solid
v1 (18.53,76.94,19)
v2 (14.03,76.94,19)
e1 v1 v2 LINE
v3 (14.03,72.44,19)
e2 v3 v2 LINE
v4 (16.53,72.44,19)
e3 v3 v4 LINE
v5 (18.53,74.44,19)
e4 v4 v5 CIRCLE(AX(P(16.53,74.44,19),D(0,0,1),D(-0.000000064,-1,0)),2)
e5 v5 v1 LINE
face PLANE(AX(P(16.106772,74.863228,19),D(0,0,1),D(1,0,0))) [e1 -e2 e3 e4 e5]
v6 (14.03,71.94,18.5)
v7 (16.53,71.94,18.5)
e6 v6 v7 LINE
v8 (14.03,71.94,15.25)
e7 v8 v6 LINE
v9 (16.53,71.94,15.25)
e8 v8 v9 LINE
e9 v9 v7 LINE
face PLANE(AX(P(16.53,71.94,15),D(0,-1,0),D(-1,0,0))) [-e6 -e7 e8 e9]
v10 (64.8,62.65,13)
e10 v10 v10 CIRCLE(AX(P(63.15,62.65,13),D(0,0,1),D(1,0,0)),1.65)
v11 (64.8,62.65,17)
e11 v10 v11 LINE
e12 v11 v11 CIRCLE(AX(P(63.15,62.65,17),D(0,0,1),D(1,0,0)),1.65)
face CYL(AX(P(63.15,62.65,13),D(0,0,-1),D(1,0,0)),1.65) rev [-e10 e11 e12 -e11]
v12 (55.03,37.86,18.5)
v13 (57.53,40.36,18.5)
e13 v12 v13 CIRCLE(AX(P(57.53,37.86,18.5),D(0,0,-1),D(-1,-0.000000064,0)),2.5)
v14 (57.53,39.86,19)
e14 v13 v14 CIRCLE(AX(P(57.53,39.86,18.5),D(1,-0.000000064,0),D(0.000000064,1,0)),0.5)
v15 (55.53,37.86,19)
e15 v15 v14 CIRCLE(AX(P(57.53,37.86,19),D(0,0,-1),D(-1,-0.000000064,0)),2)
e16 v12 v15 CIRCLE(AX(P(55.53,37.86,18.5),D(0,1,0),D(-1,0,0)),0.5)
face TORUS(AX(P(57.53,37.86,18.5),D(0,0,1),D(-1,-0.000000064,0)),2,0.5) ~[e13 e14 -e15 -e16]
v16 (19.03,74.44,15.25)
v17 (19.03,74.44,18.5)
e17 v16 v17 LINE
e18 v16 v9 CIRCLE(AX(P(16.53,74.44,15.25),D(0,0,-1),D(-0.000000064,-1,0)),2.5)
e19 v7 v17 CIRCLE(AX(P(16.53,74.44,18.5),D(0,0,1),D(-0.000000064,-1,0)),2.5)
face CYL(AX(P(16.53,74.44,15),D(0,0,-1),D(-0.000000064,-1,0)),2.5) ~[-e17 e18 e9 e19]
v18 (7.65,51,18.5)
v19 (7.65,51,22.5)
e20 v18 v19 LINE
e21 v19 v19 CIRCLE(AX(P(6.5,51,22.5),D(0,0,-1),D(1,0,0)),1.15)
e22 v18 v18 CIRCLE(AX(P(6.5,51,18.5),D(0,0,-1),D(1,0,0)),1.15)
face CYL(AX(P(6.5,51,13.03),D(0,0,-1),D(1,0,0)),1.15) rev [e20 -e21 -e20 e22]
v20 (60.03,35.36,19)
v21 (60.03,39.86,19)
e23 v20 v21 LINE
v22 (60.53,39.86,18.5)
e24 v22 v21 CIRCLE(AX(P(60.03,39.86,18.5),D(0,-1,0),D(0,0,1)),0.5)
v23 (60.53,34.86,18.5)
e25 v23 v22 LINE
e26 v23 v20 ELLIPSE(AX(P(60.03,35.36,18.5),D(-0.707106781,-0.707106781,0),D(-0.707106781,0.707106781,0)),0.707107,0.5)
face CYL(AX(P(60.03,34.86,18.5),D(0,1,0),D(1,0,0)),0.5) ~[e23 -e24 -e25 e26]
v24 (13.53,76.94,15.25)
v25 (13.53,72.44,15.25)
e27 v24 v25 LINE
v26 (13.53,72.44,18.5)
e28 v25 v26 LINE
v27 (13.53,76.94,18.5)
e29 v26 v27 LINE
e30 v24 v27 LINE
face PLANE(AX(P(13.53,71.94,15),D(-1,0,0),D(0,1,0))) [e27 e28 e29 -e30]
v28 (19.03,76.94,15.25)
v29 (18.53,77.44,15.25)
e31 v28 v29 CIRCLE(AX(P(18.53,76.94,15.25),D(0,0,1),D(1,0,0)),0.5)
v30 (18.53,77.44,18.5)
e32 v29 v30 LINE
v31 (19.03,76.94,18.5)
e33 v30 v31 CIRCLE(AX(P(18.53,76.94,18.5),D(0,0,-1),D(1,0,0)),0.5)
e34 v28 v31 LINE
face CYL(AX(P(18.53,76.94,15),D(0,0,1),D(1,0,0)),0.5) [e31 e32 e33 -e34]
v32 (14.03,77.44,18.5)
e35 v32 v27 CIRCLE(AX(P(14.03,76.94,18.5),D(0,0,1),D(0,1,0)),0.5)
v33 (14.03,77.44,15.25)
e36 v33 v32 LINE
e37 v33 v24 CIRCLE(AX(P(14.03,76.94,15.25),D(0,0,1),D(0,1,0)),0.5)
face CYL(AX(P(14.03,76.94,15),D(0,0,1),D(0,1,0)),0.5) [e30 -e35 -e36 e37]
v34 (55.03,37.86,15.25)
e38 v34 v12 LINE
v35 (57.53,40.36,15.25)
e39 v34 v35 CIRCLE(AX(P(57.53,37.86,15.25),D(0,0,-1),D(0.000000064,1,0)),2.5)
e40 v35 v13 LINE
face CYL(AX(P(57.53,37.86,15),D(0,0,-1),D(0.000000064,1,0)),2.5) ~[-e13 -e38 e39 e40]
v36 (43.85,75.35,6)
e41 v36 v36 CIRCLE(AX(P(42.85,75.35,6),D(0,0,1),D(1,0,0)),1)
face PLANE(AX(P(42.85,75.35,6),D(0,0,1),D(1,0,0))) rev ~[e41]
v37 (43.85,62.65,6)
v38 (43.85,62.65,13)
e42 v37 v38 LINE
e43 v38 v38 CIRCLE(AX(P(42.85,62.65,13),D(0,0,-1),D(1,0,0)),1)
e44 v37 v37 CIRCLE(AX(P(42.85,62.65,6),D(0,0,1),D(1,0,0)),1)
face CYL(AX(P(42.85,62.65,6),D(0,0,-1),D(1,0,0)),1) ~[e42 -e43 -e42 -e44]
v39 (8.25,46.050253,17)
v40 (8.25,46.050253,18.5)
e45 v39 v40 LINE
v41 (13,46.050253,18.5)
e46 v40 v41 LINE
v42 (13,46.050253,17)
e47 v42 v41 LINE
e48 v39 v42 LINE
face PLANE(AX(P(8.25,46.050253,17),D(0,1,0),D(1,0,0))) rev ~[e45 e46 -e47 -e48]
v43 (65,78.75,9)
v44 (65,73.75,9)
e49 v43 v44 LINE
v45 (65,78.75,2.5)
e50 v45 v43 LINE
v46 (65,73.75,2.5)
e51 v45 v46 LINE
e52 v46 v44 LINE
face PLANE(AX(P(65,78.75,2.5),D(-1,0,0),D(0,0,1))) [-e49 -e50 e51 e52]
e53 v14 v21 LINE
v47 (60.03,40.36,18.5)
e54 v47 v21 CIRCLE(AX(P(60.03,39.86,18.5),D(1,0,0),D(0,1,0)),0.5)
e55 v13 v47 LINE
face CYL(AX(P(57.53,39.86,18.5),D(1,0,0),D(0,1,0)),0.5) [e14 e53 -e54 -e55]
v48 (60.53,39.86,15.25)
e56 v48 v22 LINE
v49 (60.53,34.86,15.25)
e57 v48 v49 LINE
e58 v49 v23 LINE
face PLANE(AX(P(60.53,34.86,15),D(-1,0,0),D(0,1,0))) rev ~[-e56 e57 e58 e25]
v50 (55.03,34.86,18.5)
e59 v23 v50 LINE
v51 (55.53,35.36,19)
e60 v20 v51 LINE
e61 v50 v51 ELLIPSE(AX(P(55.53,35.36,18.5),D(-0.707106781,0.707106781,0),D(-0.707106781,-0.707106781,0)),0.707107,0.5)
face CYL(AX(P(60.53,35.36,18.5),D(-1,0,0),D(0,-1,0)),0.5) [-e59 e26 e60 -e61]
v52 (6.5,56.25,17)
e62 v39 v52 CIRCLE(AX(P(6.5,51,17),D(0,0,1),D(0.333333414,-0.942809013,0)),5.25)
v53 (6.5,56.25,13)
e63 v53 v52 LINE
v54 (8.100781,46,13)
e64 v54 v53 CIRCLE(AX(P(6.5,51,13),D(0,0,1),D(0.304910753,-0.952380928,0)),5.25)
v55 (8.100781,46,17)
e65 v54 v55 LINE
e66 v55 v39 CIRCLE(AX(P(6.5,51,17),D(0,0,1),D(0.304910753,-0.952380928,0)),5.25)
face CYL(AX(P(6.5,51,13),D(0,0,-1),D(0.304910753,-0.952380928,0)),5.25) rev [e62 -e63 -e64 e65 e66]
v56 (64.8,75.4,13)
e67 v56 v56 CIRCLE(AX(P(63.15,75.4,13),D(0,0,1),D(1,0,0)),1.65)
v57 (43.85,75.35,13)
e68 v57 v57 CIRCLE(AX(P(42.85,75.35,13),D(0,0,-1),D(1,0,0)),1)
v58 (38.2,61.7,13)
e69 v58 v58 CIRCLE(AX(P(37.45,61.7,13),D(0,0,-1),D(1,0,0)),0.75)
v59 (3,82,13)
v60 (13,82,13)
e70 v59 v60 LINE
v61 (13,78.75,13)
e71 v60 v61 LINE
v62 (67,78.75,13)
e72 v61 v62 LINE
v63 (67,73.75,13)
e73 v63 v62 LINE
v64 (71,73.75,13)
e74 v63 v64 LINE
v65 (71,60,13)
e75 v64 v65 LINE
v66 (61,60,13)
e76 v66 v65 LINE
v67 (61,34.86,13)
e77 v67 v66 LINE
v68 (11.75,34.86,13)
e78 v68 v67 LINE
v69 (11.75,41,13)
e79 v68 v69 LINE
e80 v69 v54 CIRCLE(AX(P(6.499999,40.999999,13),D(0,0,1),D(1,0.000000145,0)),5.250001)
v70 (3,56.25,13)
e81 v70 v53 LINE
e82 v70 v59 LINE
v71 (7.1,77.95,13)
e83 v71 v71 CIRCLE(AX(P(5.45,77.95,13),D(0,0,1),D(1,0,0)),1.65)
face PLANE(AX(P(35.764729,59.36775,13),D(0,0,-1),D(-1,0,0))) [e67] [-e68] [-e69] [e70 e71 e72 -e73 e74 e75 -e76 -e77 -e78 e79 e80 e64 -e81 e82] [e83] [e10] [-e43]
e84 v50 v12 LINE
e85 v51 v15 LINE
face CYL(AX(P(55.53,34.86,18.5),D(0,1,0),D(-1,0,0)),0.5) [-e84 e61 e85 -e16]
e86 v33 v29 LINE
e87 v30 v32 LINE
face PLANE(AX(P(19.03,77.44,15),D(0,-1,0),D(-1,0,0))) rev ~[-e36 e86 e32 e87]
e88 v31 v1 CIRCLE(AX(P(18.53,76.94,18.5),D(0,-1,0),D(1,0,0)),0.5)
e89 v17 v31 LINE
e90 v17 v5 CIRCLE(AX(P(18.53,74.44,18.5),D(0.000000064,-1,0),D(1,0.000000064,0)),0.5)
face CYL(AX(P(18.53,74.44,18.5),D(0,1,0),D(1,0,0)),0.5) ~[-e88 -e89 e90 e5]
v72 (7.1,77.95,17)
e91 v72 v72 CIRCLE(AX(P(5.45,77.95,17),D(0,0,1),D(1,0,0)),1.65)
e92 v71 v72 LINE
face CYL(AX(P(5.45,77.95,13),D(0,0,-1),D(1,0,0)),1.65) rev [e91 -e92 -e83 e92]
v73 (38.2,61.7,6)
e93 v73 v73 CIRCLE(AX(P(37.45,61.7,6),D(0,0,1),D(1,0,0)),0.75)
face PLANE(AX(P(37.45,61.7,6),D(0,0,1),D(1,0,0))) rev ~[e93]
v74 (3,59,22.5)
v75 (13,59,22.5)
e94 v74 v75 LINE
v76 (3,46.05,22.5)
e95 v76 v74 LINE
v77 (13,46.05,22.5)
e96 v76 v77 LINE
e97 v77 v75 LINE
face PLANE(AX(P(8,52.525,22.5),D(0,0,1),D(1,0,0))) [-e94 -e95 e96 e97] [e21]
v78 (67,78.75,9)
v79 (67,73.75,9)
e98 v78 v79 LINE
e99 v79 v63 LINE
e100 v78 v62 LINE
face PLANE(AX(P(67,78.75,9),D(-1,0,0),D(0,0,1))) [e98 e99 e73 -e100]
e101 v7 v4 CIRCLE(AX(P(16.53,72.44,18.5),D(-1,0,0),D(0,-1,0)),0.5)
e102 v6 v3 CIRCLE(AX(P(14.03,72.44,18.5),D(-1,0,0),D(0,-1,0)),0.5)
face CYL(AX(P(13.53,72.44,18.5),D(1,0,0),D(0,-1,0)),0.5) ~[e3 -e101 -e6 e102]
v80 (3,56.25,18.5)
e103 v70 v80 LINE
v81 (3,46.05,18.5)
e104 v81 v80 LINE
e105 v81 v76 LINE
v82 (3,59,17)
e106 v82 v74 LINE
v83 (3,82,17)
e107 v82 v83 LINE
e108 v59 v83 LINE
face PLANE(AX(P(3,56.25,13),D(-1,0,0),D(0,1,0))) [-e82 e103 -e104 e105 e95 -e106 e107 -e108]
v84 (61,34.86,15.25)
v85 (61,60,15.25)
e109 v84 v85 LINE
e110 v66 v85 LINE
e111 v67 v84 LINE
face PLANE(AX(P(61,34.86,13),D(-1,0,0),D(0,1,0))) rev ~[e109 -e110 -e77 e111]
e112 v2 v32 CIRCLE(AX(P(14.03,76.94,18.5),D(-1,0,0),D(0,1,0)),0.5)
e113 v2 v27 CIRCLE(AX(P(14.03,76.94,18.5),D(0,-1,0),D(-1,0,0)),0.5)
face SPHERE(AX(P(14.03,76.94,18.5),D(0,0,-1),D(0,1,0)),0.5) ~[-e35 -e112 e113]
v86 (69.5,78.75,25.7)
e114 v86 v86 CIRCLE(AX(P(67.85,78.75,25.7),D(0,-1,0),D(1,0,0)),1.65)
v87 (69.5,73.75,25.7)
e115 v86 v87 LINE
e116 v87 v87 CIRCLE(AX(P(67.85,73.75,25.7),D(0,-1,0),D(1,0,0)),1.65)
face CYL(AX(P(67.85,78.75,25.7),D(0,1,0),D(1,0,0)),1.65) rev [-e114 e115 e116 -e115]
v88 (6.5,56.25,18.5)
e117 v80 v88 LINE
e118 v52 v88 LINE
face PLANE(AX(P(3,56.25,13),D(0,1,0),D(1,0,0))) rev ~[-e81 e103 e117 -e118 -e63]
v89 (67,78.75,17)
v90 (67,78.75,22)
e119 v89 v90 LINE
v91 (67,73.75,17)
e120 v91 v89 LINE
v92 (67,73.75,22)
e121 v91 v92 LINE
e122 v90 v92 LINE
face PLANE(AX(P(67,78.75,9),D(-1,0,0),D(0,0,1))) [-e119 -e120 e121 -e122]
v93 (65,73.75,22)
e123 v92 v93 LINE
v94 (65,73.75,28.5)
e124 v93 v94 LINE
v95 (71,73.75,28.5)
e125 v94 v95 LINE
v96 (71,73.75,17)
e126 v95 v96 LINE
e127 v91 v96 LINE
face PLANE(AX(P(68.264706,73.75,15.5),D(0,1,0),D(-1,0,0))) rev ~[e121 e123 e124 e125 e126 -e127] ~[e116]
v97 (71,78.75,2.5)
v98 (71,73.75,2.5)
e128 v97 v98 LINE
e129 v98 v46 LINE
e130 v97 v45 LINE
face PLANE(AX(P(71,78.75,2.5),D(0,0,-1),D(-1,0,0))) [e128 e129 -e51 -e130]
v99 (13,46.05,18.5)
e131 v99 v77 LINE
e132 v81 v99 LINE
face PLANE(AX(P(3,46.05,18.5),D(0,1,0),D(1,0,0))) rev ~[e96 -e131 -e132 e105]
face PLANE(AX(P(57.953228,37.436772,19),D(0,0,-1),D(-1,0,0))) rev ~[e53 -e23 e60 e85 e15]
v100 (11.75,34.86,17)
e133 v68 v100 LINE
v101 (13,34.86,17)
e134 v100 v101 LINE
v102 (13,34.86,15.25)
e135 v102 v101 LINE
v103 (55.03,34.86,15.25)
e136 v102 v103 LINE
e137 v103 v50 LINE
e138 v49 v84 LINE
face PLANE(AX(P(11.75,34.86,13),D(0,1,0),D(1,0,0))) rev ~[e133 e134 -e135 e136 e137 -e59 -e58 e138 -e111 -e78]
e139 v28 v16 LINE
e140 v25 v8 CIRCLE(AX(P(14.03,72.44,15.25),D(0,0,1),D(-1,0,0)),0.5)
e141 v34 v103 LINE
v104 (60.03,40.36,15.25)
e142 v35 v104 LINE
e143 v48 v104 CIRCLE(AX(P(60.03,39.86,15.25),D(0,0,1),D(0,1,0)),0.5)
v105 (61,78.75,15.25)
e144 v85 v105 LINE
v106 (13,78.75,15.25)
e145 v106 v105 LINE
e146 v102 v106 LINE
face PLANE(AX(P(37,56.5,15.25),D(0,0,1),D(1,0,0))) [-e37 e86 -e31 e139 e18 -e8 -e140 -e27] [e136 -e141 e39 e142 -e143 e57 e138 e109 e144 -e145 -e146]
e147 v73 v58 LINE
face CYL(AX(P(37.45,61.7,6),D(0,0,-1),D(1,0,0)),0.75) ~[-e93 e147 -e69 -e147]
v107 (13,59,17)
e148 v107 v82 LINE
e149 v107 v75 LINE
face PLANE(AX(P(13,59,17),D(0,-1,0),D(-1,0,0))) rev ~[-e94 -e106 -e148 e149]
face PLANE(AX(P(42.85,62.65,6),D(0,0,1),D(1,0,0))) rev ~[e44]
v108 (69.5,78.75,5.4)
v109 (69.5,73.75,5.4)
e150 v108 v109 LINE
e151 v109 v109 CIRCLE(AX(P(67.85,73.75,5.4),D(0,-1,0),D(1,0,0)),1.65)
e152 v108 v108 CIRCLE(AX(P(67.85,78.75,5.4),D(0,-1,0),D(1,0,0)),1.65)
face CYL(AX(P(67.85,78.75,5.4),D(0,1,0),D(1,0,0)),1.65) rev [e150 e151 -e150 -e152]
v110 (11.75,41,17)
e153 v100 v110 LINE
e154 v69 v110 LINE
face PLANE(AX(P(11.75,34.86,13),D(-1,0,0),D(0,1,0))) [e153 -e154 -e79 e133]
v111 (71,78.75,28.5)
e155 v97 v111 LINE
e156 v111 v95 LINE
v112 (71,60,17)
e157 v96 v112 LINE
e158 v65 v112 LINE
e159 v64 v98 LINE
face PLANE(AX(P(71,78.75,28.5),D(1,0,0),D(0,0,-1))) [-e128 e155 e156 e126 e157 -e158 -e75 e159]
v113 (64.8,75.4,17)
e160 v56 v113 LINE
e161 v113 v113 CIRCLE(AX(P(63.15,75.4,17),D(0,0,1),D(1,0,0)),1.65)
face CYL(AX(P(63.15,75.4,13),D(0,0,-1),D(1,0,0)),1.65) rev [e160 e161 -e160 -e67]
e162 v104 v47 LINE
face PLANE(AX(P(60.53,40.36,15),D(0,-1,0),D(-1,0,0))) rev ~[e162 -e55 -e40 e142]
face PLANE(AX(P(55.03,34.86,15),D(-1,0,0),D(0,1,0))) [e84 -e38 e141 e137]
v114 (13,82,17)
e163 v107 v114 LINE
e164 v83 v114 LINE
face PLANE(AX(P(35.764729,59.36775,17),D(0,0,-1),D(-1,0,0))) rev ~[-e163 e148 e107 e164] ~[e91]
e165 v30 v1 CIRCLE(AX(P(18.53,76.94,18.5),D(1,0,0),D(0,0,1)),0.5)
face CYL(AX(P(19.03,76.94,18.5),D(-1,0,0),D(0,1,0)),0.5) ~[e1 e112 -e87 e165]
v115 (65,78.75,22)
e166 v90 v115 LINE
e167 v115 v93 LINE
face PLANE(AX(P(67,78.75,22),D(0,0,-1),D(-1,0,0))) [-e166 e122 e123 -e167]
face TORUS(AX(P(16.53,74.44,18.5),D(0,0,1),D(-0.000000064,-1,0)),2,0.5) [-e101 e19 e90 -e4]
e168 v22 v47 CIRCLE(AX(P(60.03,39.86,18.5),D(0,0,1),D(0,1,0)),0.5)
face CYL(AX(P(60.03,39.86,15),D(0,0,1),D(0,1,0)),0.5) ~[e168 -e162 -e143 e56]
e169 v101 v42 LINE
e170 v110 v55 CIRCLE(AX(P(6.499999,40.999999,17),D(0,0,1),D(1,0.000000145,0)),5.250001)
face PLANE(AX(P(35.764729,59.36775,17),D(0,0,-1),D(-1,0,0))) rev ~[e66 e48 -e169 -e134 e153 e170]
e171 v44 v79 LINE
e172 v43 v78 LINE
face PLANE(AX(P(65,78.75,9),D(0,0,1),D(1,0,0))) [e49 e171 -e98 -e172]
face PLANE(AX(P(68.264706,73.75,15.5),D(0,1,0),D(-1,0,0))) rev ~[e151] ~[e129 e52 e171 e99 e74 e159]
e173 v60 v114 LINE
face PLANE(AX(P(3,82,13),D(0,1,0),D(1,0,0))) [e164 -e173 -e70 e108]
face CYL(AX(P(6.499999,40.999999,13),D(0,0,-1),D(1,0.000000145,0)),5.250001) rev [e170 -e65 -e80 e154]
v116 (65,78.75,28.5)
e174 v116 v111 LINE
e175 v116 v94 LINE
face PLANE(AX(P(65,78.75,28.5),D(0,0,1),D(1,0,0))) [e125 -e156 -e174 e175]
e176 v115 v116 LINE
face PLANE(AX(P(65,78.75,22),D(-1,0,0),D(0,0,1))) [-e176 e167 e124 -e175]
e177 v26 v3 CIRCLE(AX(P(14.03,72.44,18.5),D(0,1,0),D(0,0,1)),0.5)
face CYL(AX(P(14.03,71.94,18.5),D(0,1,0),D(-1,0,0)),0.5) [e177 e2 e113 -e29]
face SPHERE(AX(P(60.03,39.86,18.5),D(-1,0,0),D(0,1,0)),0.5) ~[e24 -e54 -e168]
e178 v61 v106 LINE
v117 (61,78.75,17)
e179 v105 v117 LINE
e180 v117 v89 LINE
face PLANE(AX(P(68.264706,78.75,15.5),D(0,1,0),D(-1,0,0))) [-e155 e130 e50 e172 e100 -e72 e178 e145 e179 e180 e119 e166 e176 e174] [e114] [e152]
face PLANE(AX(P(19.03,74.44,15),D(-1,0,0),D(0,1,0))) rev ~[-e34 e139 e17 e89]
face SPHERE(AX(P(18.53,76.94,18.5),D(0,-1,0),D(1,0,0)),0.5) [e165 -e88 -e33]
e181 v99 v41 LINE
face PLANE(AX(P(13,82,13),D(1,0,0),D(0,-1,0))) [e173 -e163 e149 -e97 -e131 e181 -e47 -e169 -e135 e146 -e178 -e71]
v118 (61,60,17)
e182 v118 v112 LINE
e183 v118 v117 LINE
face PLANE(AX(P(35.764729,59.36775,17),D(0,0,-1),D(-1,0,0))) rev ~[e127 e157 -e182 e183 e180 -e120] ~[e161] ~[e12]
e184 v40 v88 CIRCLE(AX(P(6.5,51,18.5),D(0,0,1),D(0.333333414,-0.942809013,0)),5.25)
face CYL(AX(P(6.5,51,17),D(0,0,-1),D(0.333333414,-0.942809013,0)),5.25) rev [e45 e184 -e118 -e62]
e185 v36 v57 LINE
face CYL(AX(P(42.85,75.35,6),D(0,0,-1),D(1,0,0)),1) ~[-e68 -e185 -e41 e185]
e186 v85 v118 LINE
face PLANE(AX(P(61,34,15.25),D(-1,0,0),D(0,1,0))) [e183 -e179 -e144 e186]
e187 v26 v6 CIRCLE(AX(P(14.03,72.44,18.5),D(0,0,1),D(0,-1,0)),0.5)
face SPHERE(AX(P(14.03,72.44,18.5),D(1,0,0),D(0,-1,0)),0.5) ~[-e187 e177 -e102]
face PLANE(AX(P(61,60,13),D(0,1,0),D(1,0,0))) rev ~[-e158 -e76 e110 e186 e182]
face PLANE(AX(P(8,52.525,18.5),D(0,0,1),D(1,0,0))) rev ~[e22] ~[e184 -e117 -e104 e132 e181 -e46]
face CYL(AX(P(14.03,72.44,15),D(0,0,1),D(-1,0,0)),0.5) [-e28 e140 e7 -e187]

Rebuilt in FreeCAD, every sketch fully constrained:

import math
import FreeCAD as App
import Part
import Sketcher


def edges_at(feature, points):
    """Names of the edges that pass closest to the given points."""
    edges = feature.Shape.Edges
    near = lambda p: min(range(len(edges)), key=lambda i: edges[i].distToShape(Part.Vertex(*p))[0])
    return sorted({f"Edge{near(p) + 1}" for p in points})


def add_polygon(sketch, points):
    """Adds a closed chain of lines whose ends are joined by coincident constraints."""
    first, n = sketch.GeometryCount, len(points)
    for a, b in zip(points, points[1:] + points[:1]):
        sketch.addGeometry(Part.LineSegment(App.Vector(*a, 0), App.Vector(*b, 0)), False)
    for i in range(n):
        sketch.addConstraint(Sketcher.Constraint("Coincident", first + i, 2, first + (i + 1) % n, 1))

doc = App.newDocument("Part")
params = doc.addObject("Spreadsheet::Sheet", "Params")
for row, (alias, value) in enumerate([
    ("sketch1_diameter", "2.3 mm"),
    ("pad1_length", "10 mm"),
    ("sketch2_width", "10 mm"),
    ("sketch2_radius", "5.25 mm"),
    ("sketch2_width2", "3.5 mm"),
    ("sketch2_width3", "4.75 mm"),
    ("pad2_length", "1.5 mm"),
    ("sketch3_diameter", "2 mm"),
    ("sketch3_diameter2", "1.5 mm"),
    ("pad3_length", "8 mm"),
    ("sketch4_width", "48 mm"),
    ("sketch4_height", "45 mm"),
    ("pad4_length", "10 mm"),
    ("sketch5_diameter", "3.3 mm"),
    ("sketch5_width", "10 mm"),
    ("sketch5_width2", "58 mm"),
    ("sketch5_radius", "5.25 mm"),
    ("sketch5_width3", "3.5 mm"),
    ("pad5_length", "4 mm"),
    ("sketch6_radius", "2.5 mm"),
    ("sketch6_width", "3 mm"),
    ("pad6_length", "4 mm"),
    ("fillet_radius", "0.5 mm"),
    ("sketch7_diameter", "3.3 mm"),
    ("sketch7_width", "6 mm"),
    ("sketch7_width2", "2 mm"),
    ("sketch7_height", "13 mm"),
    ("sketch7_height2", "26 mm"),
    ("pad7_length", "5 mm"),
    ("sketch8_width", "10 mm"),
    ("sketch8_height", "12.95 mm"),
    ("pad8_length", "4 mm"),
], start=1):
    params.set(f"A{row}", alias)
    params.set(f"B{row}", "=" + value)
    params.setAlias(f"B{row}", alias)

body = doc.addObject("PartDesign::Body", "Body")

sketch1 = body.newObject("Sketcher::SketchObject", "Sketch")
sketch1.AttachmentSupport = (doc.getObject("XY_Plane"), [""])
sketch1.MapMode = "FlatFace"
sketch1.AttachmentOffset = App.Placement(App.Vector(0, 0, 13.03), App.Rotation())
sketch1.addGeometry(Part.Circle(App.Vector(6.5, 51, 0), App.Vector(0, 0, 1), 1.1), False)
sketch1.addConstraint(Sketcher.Constraint("Diameter", 0, 2.3))
sketch1.addConstraint(Sketcher.Constraint("DistanceY", -1, 1, 0, 3, 51.0))
sketch1.addConstraint(Sketcher.Constraint("DistanceX", -1, 1, 0, 3, 6.5))
sketch1.setExpression("Constraints[0]", "Params.sketch1_diameter")
pad1 = body.newObject("PartDesign::Pad", "Pad")
pad1.Profile = sketch1
pad1.setExpression("Length", "Params.pad1_length")
body2 = doc.addObject("PartDesign::Body", "Body001")

sketch2 = body2.newObject("Sketcher::SketchObject", "Sketch001")
sketch2.AttachmentSupport = (doc.getObject("XY_Plane001"), [""])
sketch2.MapMode = "FlatFace"
sketch2.addGeometry(Part.LineSegment(App.Vector(8.2, 46.1, 0), App.Vector(13, 46.1, 0)), False)
sketch2.addGeometry(Part.LineSegment(App.Vector(13, 46.1, 0), App.Vector(13, 59, 0)), False)
sketch2.addGeometry(Part.LineSegment(App.Vector(13, 59, 0), App.Vector(3, 59, 0)), False)
sketch2.addGeometry(Part.LineSegment(App.Vector(3, 59, 0), App.Vector(3, 56.2, 0)), False)
sketch2.addGeometry(Part.LineSegment(App.Vector(3, 56.2, 0), App.Vector(6.5, 56.2, 0)), False)
sketch2.addGeometry(Part.ArcOfCircle(Part.Circle(App.Vector(6.5, 51, 0), App.Vector(0, 0, 1), 5.2), math.radians(-71), math.radians(90)), False)
sketch2.addConstraint(Sketcher.Constraint("Coincident", 0, 2, 1, 1))
sketch2.addConstraint(Sketcher.Constraint("Coincident", 1, 2, 2, 1))
sketch2.addConstraint(Sketcher.Constraint("Coincident", 2, 2, 3, 1))
sketch2.addConstraint(Sketcher.Constraint("Coincident", 3, 2, 4, 1))
sketch2.addConstraint(Sketcher.Constraint("Tangent", 4, 2, 5, 2))
sketch2.addConstraint(Sketcher.Constraint("Coincident", 5, 1, 0, 1))
sketch2.addConstraint(Sketcher.Constraint("Horizontal", 0))
sketch2.addConstraint(Sketcher.Constraint("Vertical", 1))
sketch2.addConstraint(Sketcher.Constraint("Horizontal", 2))
sketch2.addConstraint(Sketcher.Constraint("Vertical", 3))
sketch2.addConstraint(Sketcher.Constraint("Horizontal", 4))
sketch2.addConstraint(Sketcher.Constraint("DistanceX", 2, 2, 2, 1, 10.0))
sketch2.addConstraint(Sketcher.Constraint("Radius", 5, 5.25))
sketch2.addConstraint(Sketcher.Constraint("DistanceX", 4, 1, 4, 2, 3.5))
sketch2.addConstraint(Sketcher.Constraint("DistanceY", -1, 1, 5, 3, 51.0))
sketch2.addConstraint(Sketcher.Constraint("DistanceX", -1, 1, 0, 2, 13.0))
sketch2.addConstraint(Sketcher.Constraint("DistanceY", -1, 1, 1, 2, 59.0))
sketch2.addConstraint(Sketcher.Constraint("DistanceX", 0, 1, 0, 2, 4.75))
sketch2.setExpression("Constraints[11]", "Params.sketch2_width")
sketch2.setExpression("Constraints[12]", "Params.sketch2_radius")
sketch2.setExpression("Constraints[13]", "Params.sketch2_width2")
sketch2.setExpression("Constraints[17]", "Params.sketch2_width3")
pad2 = body2.newObject("PartDesign::Pad", "Pad001")
pad2.Profile = sketch2
pad2.setExpression("Length", "Params.pad2_length")
body3 = doc.addObject("PartDesign::Body", "Body002")
doc.recompute()

body2.Placement = App.Placement(App.Vector(0, 0, 17), App.Rotation(App.Vector(0, 0, 1), 0))
boolean = body3.newObject("PartDesign::Boolean", "Boolean")
boolean.Type = "Fuse"
boolean.addObjects([body2])
body4 = doc.addObject("PartDesign::Body", "Body003")
body4.AllowCompound = True

sketch3 = body4.newObject("Sketcher::SketchObject", "Sketch002")
sketch3.AttachmentSupport = (doc.getObject("XY_Plane003"), [""])
sketch3.MapMode = "FlatFace"
sketch3.addGeometry(Part.Circle(App.Vector(37.5, 61.7, 0), App.Vector(0, 0, 1), 0.8), False)
sketch3.addGeometry(Part.Circle(App.Vector(42.9, 62.6, 0), App.Vector(0, 0, 1), 1), False)
sketch3.addGeometry(Part.Circle(App.Vector(42.9, 75.3, 0), App.Vector(0, 0, 1), 1), False)
sketch3.addConstraint(Sketcher.Constraint("Equal", 1, 2))
sketch3.addConstraint(Sketcher.Constraint("Vertical", 1, 3, 2, 3))
sketch3.addConstraint(Sketcher.Constraint("Diameter", 1, 2.0))
sketch3.addConstraint(Sketcher.Constraint("Diameter", 0, 1.5))
sketch3.addConstraint(Sketcher.Constraint("DistanceY", -1, 1, 0, 3, 61.7))
sketch3.addConstraint(Sketcher.Constraint("DistanceX", 0, 3, 1, 3, 5.4))
sketch3.addConstraint(Sketcher.Constraint("DistanceY", 1, 3, 2, 3, 12.7))
sketch3.addConstraint(Sketcher.Constraint("DistanceX", -1, 1, 0, 3, 37.45))
sketch3.addConstraint(Sketcher.Constraint("DistanceY", -1, 1, 1, 3, 62.65))
sketch3.setExpression("Constraints[2]", "Params.sketch3_diameter")
sketch3.setExpression("Constraints[3]", "Params.sketch3_diameter2")
pad3 = body4.newObject("PartDesign::Pad", "Pad002")
pad3.Profile = sketch3
pad3.setExpression("Length", "Params.pad3_length")
body5 = doc.addObject("PartDesign::Body", "Body004")
body5.AllowCompound = True
doc.recompute()

body4.Placement = App.Placement(App.Vector(0, 0, 6), App.Rotation(App.Vector(0, 0, 1), 0))
boolean2 = body5.newObject("PartDesign::Boolean", "Boolean001")
boolean2.Type = "Fuse"
boolean2.addObjects([body4])
body6 = doc.addObject("PartDesign::Body", "Body005")

sketch4 = body6.newObject("Sketcher::SketchObject", "Sketch003")
sketch4.AttachmentSupport = (doc.getObject("XY_Plane005"), [""])
sketch4.MapMode = "FlatFace"
sketch4.AttachmentOffset = App.Placement(App.Vector(0, 0, 15.25), App.Rotation())
add_polygon(sketch4, [(13, 79), (13, 34), (61, 34), (61, 79)])
sketch4.addConstraint(Sketcher.Constraint("Vertical", 0))
sketch4.addConstraint(Sketcher.Constraint("Horizontal", 1))
sketch4.addConstraint(Sketcher.Constraint("Vertical", 2))
sketch4.addConstraint(Sketcher.Constraint("Horizontal", 3))
sketch4.addConstraint(Sketcher.Constraint("DistanceX", 1, 1, 1, 2, 48.0))
sketch4.addConstraint(Sketcher.Constraint("DistanceY", 0, 2, 0, 1, 45.0))
sketch4.addConstraint(Sketcher.Constraint("DistanceX", -1, 1, 0, 2, 13.0))
sketch4.addConstraint(Sketcher.Constraint("DistanceY", -1, 1, 0, 2, 34.0))
sketch4.setExpression("Constraints[8]", "Params.sketch4_width")
sketch4.setExpression("Constraints[9]", "Params.sketch4_height")
pad4 = body6.newObject("PartDesign::Pad", "Pad003")
pad4.Profile = sketch4
pad4.setExpression("Length", "Params.pad4_length")
body7 = doc.addObject("PartDesign::Body", "Body006")

sketch5 = body7.newObject("Sketcher::SketchObject", "Sketch004")
sketch5.AttachmentSupport = (doc.getObject("XY_Plane006"), [""])
sketch5.MapMode = "FlatFace"
sketch5.addGeometry(Part.LineSegment(App.Vector(3, 82, 0), App.Vector(3, 56.2, 0)), False)
sketch5.addGeometry(Part.LineSegment(App.Vector(3, 56.2, 0), App.Vector(6.5, 56.2, 0)), False)
sketch5.addGeometry(Part.ArcOfCircle(Part.Circle(App.Vector(6.5, 51, 0), App.Vector(0, 0, 1), 5.3), math.radians(-72), math.radians(90)), False)
sketch5.addGeometry(Part.ArcOfCircle(Part.Circle(App.Vector(6.5, 41, 0), App.Vector(0, 0, 1), 5.3), math.radians(0), math.radians(72)), False)
sketch5.addGeometry(Part.LineSegment(App.Vector(11.8, 41, 0), App.Vector(11.8, 34.9, 0)), False)
sketch5.addGeometry(Part.LineSegment(App.Vector(11.8, 34.9, 0), App.Vector(61, 34.9, 0)), False)
sketch5.addGeometry(Part.LineSegment(App.Vector(61, 34.9, 0), App.Vector(61, 60, 0)), False)
sketch5.addGeometry(Part.LineSegment(App.Vector(61, 60, 0), App.Vector(71, 60, 0)), False)
sketch5.addGeometry(Part.LineSegment(App.Vector(71, 60, 0), App.Vector(71, 78.8, 0)), False)
sketch5.addGeometry(Part.LineSegment(App.Vector(71, 78.8, 0), App.Vector(13, 78.8, 0)), False)
sketch5.addGeometry(Part.LineSegment(App.Vector(13, 78.8, 0), App.Vector(13, 82, 0)), False)
sketch5.addGeometry(Part.LineSegment(App.Vector(13, 82, 0), App.Vector(3, 82, 0)), False)
sketch5.addGeometry(Part.Circle(App.Vector(63.1, 62.6, 0), App.Vector(0, 0, 1), 1.6), False)
sketch5.addGeometry(Part.Circle(App.Vector(63.1, 75.4, 0), App.Vector(0, 0, 1), 1.6), False)
sketch5.addGeometry(Part.Circle(App.Vector(5.5, 78, 0), App.Vector(0, 0, 1), 1.6), False)
sketch5.addConstraint(Sketcher.Constraint("Coincident", 0, 2, 1, 1))
sketch5.addConstraint(Sketcher.Constraint("Tangent", 1, 2, 2, 2))
sketch5.addConstraint(Sketcher.Constraint("Coincident", 2, 1, 3, 2))
sketch5.addConstraint(Sketcher.Constraint("Tangent", 3, 1, 4, 1))
sketch5.addConstraint(Sketcher.Constraint("Coincident", 4, 2, 5, 1))
sketch5.addConstraint(Sketcher.Constraint("Coincident", 5, 2, 6, 1))
sketch5.addConstraint(Sketcher.Constraint("Coincident", 6, 2, 7, 1))
sketch5.addConstraint(Sketcher.Constraint("Coincident", 7, 2, 8, 1))
sketch5.addConstraint(Sketcher.Constraint("Coincident", 8, 2, 9, 1))
sketch5.addConstraint(Sketcher.Constraint("Coincident", 9, 2, 10, 1))
sketch5.addConstraint(Sketcher.Constraint("Coincident", 10, 2, 11, 1))
sketch5.addConstraint(Sketcher.Constraint("Coincident", 11, 2, 0, 1))
sketch5.addConstraint(Sketcher.Constraint("Vertical", 0))
sketch5.addConstraint(Sketcher.Constraint("Horizontal", 1))
sketch5.addConstraint(Sketcher.Constraint("Vertical", 4))
sketch5.addConstraint(Sketcher.Constraint("Horizontal", 5))
sketch5.addConstraint(Sketcher.Constraint("Vertical", 6))
sketch5.addConstraint(Sketcher.Constraint("Horizontal", 7))
sketch5.addConstraint(Sketcher.Constraint("Vertical", 8))
sketch5.addConstraint(Sketcher.Constraint("Horizontal", 9))
sketch5.addConstraint(Sketcher.Constraint("Vertical", 10))
sketch5.addConstraint(Sketcher.Constraint("Horizontal", 11))
sketch5.addConstraint(Sketcher.Constraint("Equal", 2, 3))
sketch5.addConstraint(Sketcher.Constraint("Equal", 12, 13))
sketch5.addConstraint(Sketcher.Constraint("Equal", 13, 14))
sketch5.addConstraint(Sketcher.Constraint("Vertical", 2, 3, 3, 3))
sketch5.addConstraint(Sketcher.Constraint("Vertical", 12, 3, 13, 3))
sketch5.addConstraint(Sketcher.Constraint("Equal", 7, 11))
sketch5.addConstraint(Sketcher.Constraint("Diameter", 12, 3.3))
sketch5.addConstraint(Sketcher.Constraint("DistanceX", 7, 1, 7, 2, 10.0))
sketch5.addConstraint(Sketcher.Constraint("DistanceX", 9, 2, 9, 1, 58.0))
sketch5.addConstraint(Sketcher.Constraint("Radius", 2, 5.25))
sketch5.addConstraint(Sketcher.Constraint("DistanceX", 1, 1, 1, 2, 3.5))
sketch5.addConstraint(Sketcher.Constraint("DistanceY", -1, 1, 2, 3, 51.0))
sketch5.addConstraint(Sketcher.Constraint("DistanceY", -1, 1, 3, 3, 40.999999))
sketch5.addConstraint(Sketcher.Constraint("DistanceX", -1, 1, 0, 2, 3.0))
sketch5.addConstraint(Sketcher.Constraint("DistanceY", -1, 1, 6, 2, 60.0))
sketch5.addConstraint(Sketcher.Constraint("DistanceY", -1, 1, 10, 2, 82.0))
sketch5.addConstraint(Sketcher.Constraint("DistanceY", 4, 2, 4, 1, 6.14))
sketch5.addConstraint(Sketcher.Constraint("DistanceY", 8, 1, 8, 2, 18.75))
sketch5.addConstraint(Sketcher.Constraint("DistanceY", -1, 1, 13, 3, 75.4))
sketch5.addConstraint(Sketcher.Constraint("DistanceX", 14, 3, 13, 3, 57.7))
sketch5.addConstraint(Sketcher.Constraint("DistanceY", 12, 3, 14, 3, 15.3))
sketch5.addConstraint(Sketcher.Constraint("DistanceY", 0, 2, 14, 3, 21.7))
sketch5.addConstraint(Sketcher.Constraint("DistanceX", -1, 1, 12, 3, 63.15))
sketch5.setExpression("Constraints[28]", "Params.sketch5_diameter")
sketch5.setExpression("Constraints[29]", "Params.sketch5_width")
sketch5.setExpression("Constraints[30]", "Params.sketch5_width2")
sketch5.setExpression("Constraints[31]", "Params.sketch5_radius")
sketch5.setExpression("Constraints[32]", "Params.sketch5_width3")
pad5 = body7.newObject("PartDesign::Pad", "Pad004")
pad5.Profile = sketch5
pad5.setExpression("Length", "Params.pad5_length")
body8 = doc.addObject("PartDesign::Body", "Body007")
doc.recompute()

body7.Placement = App.Placement(App.Vector(0, 0, 13), App.Rotation(App.Vector(0, 0, 1), 0))
boolean3 = body8.newObject("PartDesign::Boolean", "Boolean002")
boolean3.Type = "Fuse"
boolean3.addObjects([body7])
doc.recompute()

boolean4 = body8.newObject("PartDesign::Boolean", "Boolean003")
boolean4.Type = "Cut"
boolean4.addObjects([body6])
body9 = doc.addObject("PartDesign::Body", "Body008")
body9.AllowCompound = True

sketch6 = body9.newObject("Sketcher::SketchObject", "Sketch005")
sketch6.AttachmentSupport = (doc.getObject("XY_Plane008"), [""])
sketch6.MapMode = "FlatFace"
sketch6.addGeometry(Part.LineSegment(App.Vector(19, 74.4, 0), App.Vector(19, 77.4, 0)), False)
sketch6.addGeometry(Part.LineSegment(App.Vector(19, 77.4, 0), App.Vector(13.5, 77.4, 0)), False)
sketch6.addGeometry(Part.LineSegment(App.Vector(13.5, 77.4, 0), App.Vector(13.5, 71.9, 0)), False)
sketch6.addGeometry(Part.LineSegment(App.Vector(13.5, 71.9, 0), App.Vector(16.5, 71.9, 0)), False)
sketch6.addGeometry(Part.ArcOfCircle(Part.Circle(App.Vector(16.5, 74.4, 0), App.Vector(0, 0, 1), 2.5), math.radians(-90), math.radians(0)), False)
sketch6.addGeometry(Part.LineSegment(App.Vector(55, 34.9, 0), App.Vector(60.5, 34.9, 0)), False)
sketch6.addGeometry(Part.LineSegment(App.Vector(60.5, 34.9, 0), App.Vector(60.5, 40.4, 0)), False)
sketch6.addGeometry(Part.LineSegment(App.Vector(60.5, 40.4, 0), App.Vector(57.5, 40.4, 0)), False)
sketch6.addGeometry(Part.ArcOfCircle(Part.Circle(App.Vector(57.5, 37.9, 0), App.Vector(0, 0, 1), 2.5), math.radians(90), math.radians(180)), False)
sketch6.addGeometry(Part.LineSegment(App.Vector(55, 37.9, 0), App.Vector(55, 34.9, 0)), False)
sketch6.addConstraint(Sketcher.Constraint("Coincident", 0, 2, 1, 1))
sketch6.addConstraint(Sketcher.Constraint("Coincident", 1, 2, 2, 1))
sketch6.addConstraint(Sketcher.Constraint("Coincident", 2, 2, 3, 1))
sketch6.addConstraint(Sketcher.Constraint("Tangent", 3, 2, 4, 1))
sketch6.addConstraint(Sketcher.Constraint("Tangent", 4, 2, 0, 1))
sketch6.addConstraint(Sketcher.Constraint("Coincident", 5, 2, 6, 1))
sketch6.addConstraint(Sketcher.Constraint("Coincident", 6, 2, 7, 1))
sketch6.addConstraint(Sketcher.Constraint("Tangent", 7, 2, 8, 1))
sketch6.addConstraint(Sketcher.Constraint("Tangent", 8, 2, 9, 1))
sketch6.addConstraint(Sketcher.Constraint("Coincident", 9, 2, 5, 1))
sketch6.addConstraint(Sketcher.Constraint("Vertical", 0))
sketch6.addConstraint(Sketcher.Constraint("Horizontal", 1))
sketch6.addConstraint(Sketcher.Constraint("Vertical", 2))
sketch6.addConstraint(Sketcher.Constraint("Horizontal", 3))
sketch6.addConstraint(Sketcher.Constraint("Horizontal", 5))
sketch6.addConstraint(Sketcher.Constraint("Vertical", 6))
sketch6.addConstraint(Sketcher.Constraint("Horizontal", 7))
sketch6.addConstraint(Sketcher.Constraint("Vertical", 9))
sketch6.addConstraint(Sketcher.Constraint("Equal", 4, 8))
sketch6.addConstraint(Sketcher.Constraint("Equal", 1, 5))
sketch6.addConstraint(Sketcher.Constraint("Equal", 7, 0))
sketch6.addConstraint(Sketcher.Constraint("Equal", 2, 6))
sketch6.addConstraint(Sketcher.Constraint("Radius", 4, 2.5))
sketch6.addConstraint(Sketcher.Constraint("DistanceX", 3, 1, 3, 2, 3.0))
sketch6.addConstraint(Sketcher.Constraint("DistanceX", 4, 3, 8, 3, 41.0))
sketch6.addConstraint(Sketcher.Constraint("DistanceX", -1, 1, 4, 3, 16.53))
sketch6.addConstraint(Sketcher.Constraint("DistanceY", -1, 1, 4, 3, 74.44))
sketch6.addConstraint(Sketcher.Constraint("DistanceY", -1, 1, 8, 3, 37.86))
sketch6.setExpression("Constraints[22]", "Params.sketch6_radius")
sketch6.setExpression("Constraints[23]", "Params.sketch6_width")
pad6 = body9.newObject("PartDesign::Pad", "Pad005")
pad6.Profile = sketch6
pad6.setExpression("Length", "Params.pad6_length")
body10 = doc.addObject("PartDesign::Body", "Body009")
body10.AllowCompound = True
doc.recompute()

body9.Placement = App.Placement(App.Vector(0, 0, 2), App.Rotation(App.Vector(0, 0, 1), 0))
boolean5 = body10.newObject("PartDesign::Boolean", "Boolean004")
boolean5.Type = "Fuse"
boolean5.addObjects([body9])
doc.recompute()

fillet = body10.newObject("PartDesign::Fillet", "Fillet")
fillet.Base = (boolean5, edges_at(boolean5, [
    (57.78, 34.86, 6),
    (55.03, 36.36, 6),
    (55.762, 39.628, 6),
    (60.53, 40.36, 4),
    (59.03, 40.36, 6),
    (60.53, 37.61, 6),
    (18.298, 72.672, 6),
    (19.03, 77.44, 4),
    (19.03, 75.94, 6),
    (13.53, 77.44, 4),
    (16.28, 77.44, 6),
    (13.53, 71.94, 4),
    (13.53, 74.69, 6),
    (15.03, 71.94, 6),
]))
fillet.setExpression("Radius", "Params.fillet_radius")
body11 = doc.addObject("PartDesign::Body", "Body010")
body11.AllowCompound = True
doc.recompute()

body10.Placement = App.Placement(App.Vector(0, 0, 13), App.Rotation(App.Vector(0, 0, 1), 0))
boolean6 = body11.newObject("PartDesign::Boolean", "Boolean005")
boolean6.Type = "Fuse"
boolean6.addObjects([body10])
body12 = doc.addObject("PartDesign::Body", "Body011")

sketch7 = body12.newObject("Sketcher::SketchObject", "Sketch006")
sketch7.AttachmentSupport = (doc.getObject("XZ_Plane011"), [""])
sketch7.MapMode = "FlatFace"
add_polygon(sketch7, [(71, 28.5), (65, 28.5), (65, 22), (67, 22), (67, 9), (65, 9), (65, 2.5), (71, 2.5)])
sketch7.addGeometry(Part.Circle(App.Vector(67.8, 5.4, 0), App.Vector(0, 0, 1), 1.6), False)
sketch7.addGeometry(Part.Circle(App.Vector(67.8, 25.7, 0), App.Vector(0, 0, 1), 1.6), False)
sketch7.addConstraint(Sketcher.Constraint("Horizontal", 0))
sketch7.addConstraint(Sketcher.Constraint("Vertical", 1))
sketch7.addConstraint(Sketcher.Constraint("Horizontal", 2))
sketch7.addConstraint(Sketcher.Constraint("Vertical", 3))
sketch7.addConstraint(Sketcher.Constraint("Horizontal", 4))
sketch7.addConstraint(Sketcher.Constraint("Vertical", 5))
sketch7.addConstraint(Sketcher.Constraint("Horizontal", 6))
sketch7.addConstraint(Sketcher.Constraint("Vertical", 7))
sketch7.addConstraint(Sketcher.Constraint("Equal", 8, 9))
sketch7.addConstraint(Sketcher.Constraint("Vertical", 8, 3, 9, 3))
sketch7.addConstraint(Sketcher.Constraint("Vertical", 1, 2, 4, 2))
sketch7.addConstraint(Sketcher.Constraint("Equal", 1, 5))
sketch7.addConstraint(Sketcher.Constraint("Diameter", 8, 3.3))
sketch7.addConstraint(Sketcher.Constraint("DistanceX", 0, 2, 0, 1, 6.0))
sketch7.addConstraint(Sketcher.Constraint("DistanceX", 2, 1, 2, 2, 2.0))
sketch7.addConstraint(Sketcher.Constraint("DistanceY", 3, 2, 3, 1, 13.0))
sketch7.addConstraint(Sketcher.Constraint("DistanceY", 7, 1, 7, 2, 26.0))
sketch7.addConstraint(Sketcher.Constraint("DistanceX", -1, 1, 0, 2, 65.0))
sketch7.addConstraint(Sketcher.Constraint("DistanceY", -1, 1, 1, 2, 22.0))
sketch7.addConstraint(Sketcher.Constraint("DistanceY", -1, 1, 8, 3, 5.4))
sketch7.addConstraint(Sketcher.Constraint("DistanceY", -1, 1, 9, 3, 25.7))
sketch7.addConstraint(Sketcher.Constraint("DistanceX", -1, 1, 8, 3, 67.85))
sketch7.setExpression("Constraints[20]", "Params.sketch7_diameter")
sketch7.setExpression("Constraints[21]", "Params.sketch7_width")
sketch7.setExpression("Constraints[22]", "Params.sketch7_width2")
sketch7.setExpression("Constraints[23]", "Params.sketch7_height")
sketch7.setExpression("Constraints[24]", "Params.sketch7_height2")
pad7 = body12.newObject("PartDesign::Pad", "Pad006")
pad7.Profile = sketch7
pad7.setExpression("Length", "Params.pad7_length")
body13 = doc.addObject("PartDesign::Body", "Body012")
doc.recompute()

body12.Placement = App.Placement(App.Vector(0, 78.75, 0), App.Rotation(App.Vector(0, 0, 1), 0))
boolean7 = body13.newObject("PartDesign::Boolean", "Boolean006")
boolean7.Type = "Fuse"
boolean7.addObjects([body12])
body14 = doc.addObject("PartDesign::Body", "Body013")
body14.AllowCompound = True

sketch8 = body14.newObject("Sketcher::SketchObject", "Sketch007")
sketch8.AttachmentSupport = (doc.getObject("XY_Plane013"), [""])
sketch8.MapMode = "FlatFace"
sketch8.AttachmentOffset = App.Placement(App.Vector(0, 0, 18.5), App.Rotation())
add_polygon(sketch8, [(3, 59), (3, 46), (13, 46), (13, 59)])
sketch8.addConstraint(Sketcher.Constraint("Vertical", 0))
sketch8.addConstraint(Sketcher.Constraint("Horizontal", 1))
sketch8.addConstraint(Sketcher.Constraint("Vertical", 2))
sketch8.addConstraint(Sketcher.Constraint("Horizontal", 3))
sketch8.addConstraint(Sketcher.Constraint("DistanceX", 1, 1, 1, 2, 10.0))
sketch8.addConstraint(Sketcher.Constraint("DistanceX", -1, 1, 0, 2, 3.0))
sketch8.addConstraint(Sketcher.Constraint("DistanceY", -1, 1, 2, 2, 59.0))
sketch8.addConstraint(Sketcher.Constraint("DistanceY", 0, 2, 0, 1, 12.95))
sketch8.setExpression("Constraints[8]", "Params.sketch8_width")
sketch8.setExpression("Constraints[11]", "Params.sketch8_height")
pad8 = body14.newObject("PartDesign::Pad", "Pad007")
pad8.Profile = sketch8
pad8.setExpression("Length", "Params.pad8_length")
doc.recompute()

boolean8 = body14.newObject("PartDesign::Boolean", "Boolean007")
boolean8.Type = "Fuse"
boolean8.addObjects([body3])
doc.recompute()

boolean9 = body14.newObject("PartDesign::Boolean", "Boolean008")
boolean9.Type = "Fuse"
boolean9.addObjects([body5])
doc.recompute()

boolean10 = body14.newObject("PartDesign::Boolean", "Boolean009")
boolean10.Type = "Fuse"
boolean10.addObjects([body8])
doc.recompute()

boolean11 = body14.newObject("PartDesign::Boolean", "Boolean010")
boolean11.Type = "Fuse"
boolean11.addObjects([body11])
doc.recompute()

boolean12 = body14.newObject("PartDesign::Boolean", "Boolean011")
boolean12.Type = "Fuse"
boolean12.addObjects([body13])
doc.recompute()

boolean13 = body14.newObject("PartDesign::Boolean", "Boolean012")
boolean13.Type = "Cut"
boolean13.addObjects([body])

doc.recompute()
